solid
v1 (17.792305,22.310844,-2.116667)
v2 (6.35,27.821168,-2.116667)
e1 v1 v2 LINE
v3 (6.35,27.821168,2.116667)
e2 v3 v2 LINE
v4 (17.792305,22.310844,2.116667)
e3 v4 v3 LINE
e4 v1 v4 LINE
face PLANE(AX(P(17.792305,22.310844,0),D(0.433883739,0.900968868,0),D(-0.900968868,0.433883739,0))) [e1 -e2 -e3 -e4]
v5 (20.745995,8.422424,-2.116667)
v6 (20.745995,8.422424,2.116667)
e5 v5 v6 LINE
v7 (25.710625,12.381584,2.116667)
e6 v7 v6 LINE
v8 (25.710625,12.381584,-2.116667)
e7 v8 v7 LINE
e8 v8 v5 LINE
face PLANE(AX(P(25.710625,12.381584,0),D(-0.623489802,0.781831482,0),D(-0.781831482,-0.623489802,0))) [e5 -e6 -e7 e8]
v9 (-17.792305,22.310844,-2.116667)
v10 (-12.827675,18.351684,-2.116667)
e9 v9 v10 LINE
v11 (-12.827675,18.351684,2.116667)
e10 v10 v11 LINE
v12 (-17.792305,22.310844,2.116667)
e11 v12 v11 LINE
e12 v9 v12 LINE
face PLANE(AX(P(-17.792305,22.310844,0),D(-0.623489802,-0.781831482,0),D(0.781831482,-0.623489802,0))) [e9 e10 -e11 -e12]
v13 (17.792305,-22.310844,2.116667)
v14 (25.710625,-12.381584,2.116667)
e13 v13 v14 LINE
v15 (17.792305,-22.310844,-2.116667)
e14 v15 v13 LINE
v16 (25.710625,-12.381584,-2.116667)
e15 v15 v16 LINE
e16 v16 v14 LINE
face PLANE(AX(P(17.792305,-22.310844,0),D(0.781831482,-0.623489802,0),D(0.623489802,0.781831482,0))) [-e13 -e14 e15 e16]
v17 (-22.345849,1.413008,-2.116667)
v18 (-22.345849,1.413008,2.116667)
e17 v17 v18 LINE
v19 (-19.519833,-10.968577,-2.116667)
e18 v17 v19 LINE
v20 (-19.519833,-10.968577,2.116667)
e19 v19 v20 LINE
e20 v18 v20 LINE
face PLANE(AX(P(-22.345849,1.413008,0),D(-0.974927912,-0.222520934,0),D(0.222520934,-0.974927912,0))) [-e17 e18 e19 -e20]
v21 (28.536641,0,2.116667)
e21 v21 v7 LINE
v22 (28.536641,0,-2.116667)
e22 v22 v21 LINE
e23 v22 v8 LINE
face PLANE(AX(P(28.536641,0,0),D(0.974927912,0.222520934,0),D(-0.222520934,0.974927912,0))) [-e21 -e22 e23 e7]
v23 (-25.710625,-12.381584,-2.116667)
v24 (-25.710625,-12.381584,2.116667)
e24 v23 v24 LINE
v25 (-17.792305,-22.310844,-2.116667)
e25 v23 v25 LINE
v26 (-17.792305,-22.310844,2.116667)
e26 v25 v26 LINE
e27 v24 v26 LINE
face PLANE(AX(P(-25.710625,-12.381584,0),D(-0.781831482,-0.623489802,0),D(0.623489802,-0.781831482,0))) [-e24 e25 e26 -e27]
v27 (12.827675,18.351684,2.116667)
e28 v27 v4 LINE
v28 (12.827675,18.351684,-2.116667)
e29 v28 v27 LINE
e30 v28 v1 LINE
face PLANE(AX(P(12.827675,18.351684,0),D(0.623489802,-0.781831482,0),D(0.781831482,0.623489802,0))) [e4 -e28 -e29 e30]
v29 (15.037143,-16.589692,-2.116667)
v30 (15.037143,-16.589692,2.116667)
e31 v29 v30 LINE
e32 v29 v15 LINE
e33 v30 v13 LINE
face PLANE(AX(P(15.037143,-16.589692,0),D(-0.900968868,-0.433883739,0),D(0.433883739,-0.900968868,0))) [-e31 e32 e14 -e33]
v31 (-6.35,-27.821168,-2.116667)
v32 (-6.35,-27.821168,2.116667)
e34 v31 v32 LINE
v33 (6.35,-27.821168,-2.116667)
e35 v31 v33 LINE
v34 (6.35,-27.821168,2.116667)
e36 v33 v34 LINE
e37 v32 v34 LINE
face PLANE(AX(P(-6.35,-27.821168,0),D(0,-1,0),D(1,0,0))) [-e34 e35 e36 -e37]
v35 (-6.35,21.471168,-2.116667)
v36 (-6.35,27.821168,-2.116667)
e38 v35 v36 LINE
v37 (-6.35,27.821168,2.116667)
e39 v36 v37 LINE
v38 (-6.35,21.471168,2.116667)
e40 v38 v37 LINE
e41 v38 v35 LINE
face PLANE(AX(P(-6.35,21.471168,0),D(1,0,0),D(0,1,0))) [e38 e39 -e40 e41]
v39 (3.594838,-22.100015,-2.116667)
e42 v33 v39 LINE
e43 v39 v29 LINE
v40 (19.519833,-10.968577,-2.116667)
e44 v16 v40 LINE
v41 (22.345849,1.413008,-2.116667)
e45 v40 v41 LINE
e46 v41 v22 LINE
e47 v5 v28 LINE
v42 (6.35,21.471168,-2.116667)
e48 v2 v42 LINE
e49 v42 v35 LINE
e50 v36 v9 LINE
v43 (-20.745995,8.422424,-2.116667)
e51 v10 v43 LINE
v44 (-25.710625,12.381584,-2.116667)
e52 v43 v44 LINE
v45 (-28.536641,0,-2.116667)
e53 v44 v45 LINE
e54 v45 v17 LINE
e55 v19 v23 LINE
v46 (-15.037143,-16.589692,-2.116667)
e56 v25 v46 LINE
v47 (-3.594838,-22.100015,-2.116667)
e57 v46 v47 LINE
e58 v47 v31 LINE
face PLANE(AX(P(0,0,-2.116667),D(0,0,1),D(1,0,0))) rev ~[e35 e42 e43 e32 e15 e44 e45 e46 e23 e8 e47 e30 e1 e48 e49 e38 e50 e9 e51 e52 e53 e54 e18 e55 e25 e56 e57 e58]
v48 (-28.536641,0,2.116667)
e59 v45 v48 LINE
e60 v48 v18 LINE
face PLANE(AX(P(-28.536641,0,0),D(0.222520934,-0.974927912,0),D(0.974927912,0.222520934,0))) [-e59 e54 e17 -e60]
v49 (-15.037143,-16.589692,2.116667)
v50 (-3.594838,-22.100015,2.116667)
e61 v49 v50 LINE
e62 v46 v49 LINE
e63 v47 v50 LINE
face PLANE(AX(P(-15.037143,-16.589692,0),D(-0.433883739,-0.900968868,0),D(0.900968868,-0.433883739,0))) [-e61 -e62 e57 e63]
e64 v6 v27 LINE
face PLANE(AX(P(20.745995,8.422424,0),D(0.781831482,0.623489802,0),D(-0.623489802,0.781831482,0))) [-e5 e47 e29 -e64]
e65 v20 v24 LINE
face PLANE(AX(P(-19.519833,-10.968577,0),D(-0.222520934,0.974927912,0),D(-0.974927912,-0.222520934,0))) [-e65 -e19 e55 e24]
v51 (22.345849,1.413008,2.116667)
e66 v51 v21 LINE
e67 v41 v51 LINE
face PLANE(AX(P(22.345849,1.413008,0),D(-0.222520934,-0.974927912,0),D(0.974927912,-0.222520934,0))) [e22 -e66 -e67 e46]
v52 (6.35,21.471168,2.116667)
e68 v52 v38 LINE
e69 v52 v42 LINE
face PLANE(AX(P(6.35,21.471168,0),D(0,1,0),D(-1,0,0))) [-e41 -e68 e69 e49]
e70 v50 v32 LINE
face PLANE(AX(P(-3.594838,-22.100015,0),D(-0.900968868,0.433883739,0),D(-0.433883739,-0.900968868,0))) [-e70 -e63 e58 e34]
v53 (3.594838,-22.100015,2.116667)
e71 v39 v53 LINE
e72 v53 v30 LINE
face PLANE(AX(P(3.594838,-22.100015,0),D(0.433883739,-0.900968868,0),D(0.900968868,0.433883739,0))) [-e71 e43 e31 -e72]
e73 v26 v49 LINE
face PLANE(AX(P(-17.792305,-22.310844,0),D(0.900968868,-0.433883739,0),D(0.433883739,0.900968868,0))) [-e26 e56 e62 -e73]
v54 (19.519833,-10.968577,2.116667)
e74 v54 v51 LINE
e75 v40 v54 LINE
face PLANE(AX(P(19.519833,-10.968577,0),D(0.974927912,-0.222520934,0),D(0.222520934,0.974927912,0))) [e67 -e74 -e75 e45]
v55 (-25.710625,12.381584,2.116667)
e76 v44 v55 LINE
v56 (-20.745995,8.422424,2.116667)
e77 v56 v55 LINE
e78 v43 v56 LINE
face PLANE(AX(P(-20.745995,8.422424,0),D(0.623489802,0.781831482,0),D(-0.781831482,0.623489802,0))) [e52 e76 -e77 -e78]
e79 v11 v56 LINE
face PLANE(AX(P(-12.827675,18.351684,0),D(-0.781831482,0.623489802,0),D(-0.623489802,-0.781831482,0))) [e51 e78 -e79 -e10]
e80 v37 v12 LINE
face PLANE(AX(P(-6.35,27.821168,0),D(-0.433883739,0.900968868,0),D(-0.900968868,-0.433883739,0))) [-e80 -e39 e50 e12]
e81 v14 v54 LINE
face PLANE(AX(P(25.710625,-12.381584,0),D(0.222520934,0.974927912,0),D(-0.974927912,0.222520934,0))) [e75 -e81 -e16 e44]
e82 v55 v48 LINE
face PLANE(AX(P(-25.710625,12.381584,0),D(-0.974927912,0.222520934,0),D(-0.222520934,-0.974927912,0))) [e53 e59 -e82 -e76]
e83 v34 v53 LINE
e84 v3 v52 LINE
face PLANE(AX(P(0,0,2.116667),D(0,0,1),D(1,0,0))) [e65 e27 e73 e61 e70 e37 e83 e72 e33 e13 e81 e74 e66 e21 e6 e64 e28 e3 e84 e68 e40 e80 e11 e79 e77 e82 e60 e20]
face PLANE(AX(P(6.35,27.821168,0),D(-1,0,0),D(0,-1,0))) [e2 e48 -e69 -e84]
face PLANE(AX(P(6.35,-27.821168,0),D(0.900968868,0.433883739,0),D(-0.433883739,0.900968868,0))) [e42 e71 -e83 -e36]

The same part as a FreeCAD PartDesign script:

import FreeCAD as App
import Part
import Sketcher
Q = App.Units.Quantity


def add_polygon(sketch, points):
    """Adds a closed chain of lines whose ends are joined by coincident constraints."""
    first, n = sketch.GeometryCount, len(points)
    for a, b in zip(points, points[1:] + points[:1]):
        sketch.addGeometry(Part.LineSegment(App.Vector(*a, 0), App.Vector(*b, 0)), False)
    for i in range(n):
        sketch.addConstraint(Sketcher.Constraint("Coincident", first + i, 2, first + (i + 1) % n, 1))

doc = App.newDocument("Part")
body = doc.addObject("PartDesign::Body", "Body")

# Sketch on XY plane
sketch1 = body.newObject("Sketcher::SketchObject", "Sketch")
sketch1.AttachmentSupport = (doc.getObject("XY_Plane"), [""])
sketch1.MapMode = "FlatFace"
add_polygon(sketch1, [(-6, 21), (-6, 28), (-18, 22), (-13, 18), (-21, 8), (-26, 12), (-29, 0), (-22, 1), (-20, -11), (-26, -12), (-18, -22), (-15, -17), (-4, -22), (-6, -28), (6, -28), (4, -22), (15, -17), (18, -22), (26, -12), (20, -11), (22, 1), (29, 0), (26, 12), (21, 8), (13, 18), (18, 22), (6, 28), (6, 21)])  # lines 0-27
sketch1.addConstraint([
    Sketcher.Constraint("Vertical", 0),
    Sketcher.Constraint("Horizontal", 13),
    Sketcher.Constraint("Vertical", 26),
    Sketcher.Constraint("Horizontal", 27),
    Sketcher.Constraint("Symmetric", 0, 2, 13, 2, -1, 1),
    Sketcher.Constraint("Symmetric", 1, 2, 16, 2, -1, 1),
    Sketcher.Constraint("Symmetric", 4, 2, 17, 2, -1, 1),
    Sketcher.Constraint("Symmetric", 5, 2, 20, 2, -1, 1),
    Sketcher.Constraint("Symmetric", 8, 2, 21, 2, -1, 1),
    Sketcher.Constraint("Symmetric", 9, 2, 24, 2, -1, 1),
    Sketcher.Constraint("Symmetric", 12, 2, 25, 2, -1, 1),
    Sketcher.Constraint("Symmetric", 11, 2, 14, 2, -2),
    Sketcher.Constraint("Symmetric", 10, 2, 15, 2, -2),
    Sketcher.Constraint("Symmetric", 9, 2, 16, 2, -2),
    Sketcher.Constraint("Symmetric", 8, 2, 17, 2, -2),
    Sketcher.Constraint("Symmetric", 7, 2, 18, 2, -2),
    Sketcher.Constraint("Symmetric", 6, 2, 19, 2, -2),
    Sketcher.Constraint("Symmetric", 3, 2, 22, 2, -2),
    Sketcher.Constraint("Symmetric", 2, 2, 23, 2, -2),
    Sketcher.Constraint("PointOnObject", 5, 2, -1),
    Sketcher.Constraint("Perpendicular", 2, 3),
    Sketcher.Constraint("Perpendicular", 3, 4),
    Sketcher.Constraint("Perpendicular", 6, 7),
    Sketcher.Constraint("Perpendicular", 7, 8),
    Sketcher.Constraint("Perpendicular", 10, 11),
    Sketcher.Constraint("Perpendicular", 11, 12),
    Sketcher.Constraint("Perpendicular", 1, 14),
    Sketcher.Constraint("Perpendicular", 14, 15),
    Sketcher.Constraint("Perpendicular", 4, 17),
    Sketcher.Constraint("Perpendicular", 5, 18),
    Sketcher.Constraint("Equal", 1, 3),
    Sketcher.Constraint("Equal", 3, 5),
    Sketcher.Constraint("Equal", 4, 6),
    Sketcher.Constraint("Equal", 8, 10),
    Sketcher.Constraint("DistanceX", 13, 1, 13, 2, Q("0.5 in")),
    Sketcher.Constraint("Distance", 1, Q("0.5 in")),
    Sketcher.Constraint("DistanceY", 0, 1, 0, 2, Q("0.25 in")),
    Sketcher.Constraint("Distance", 2, Q("0.25 in")),
    Sketcher.Constraint("DistanceY", 4, 2, 2, 2, Q("5.9701 mm")),
    Sketcher.Constraint("DistanceY", 7, 2, 3, 2, Q("19.391001 mm")),
    Sketcher.Constraint("DistanceY", 10, 2, 6, 2, Q("18.0027 mm")),
])
pad1 = body.newObject("PartDesign::Pad", "Pad")
pad1.Profile = sketch1
pad1.Length = 4.233333
pad1.Midplane = True

doc.recompute()
